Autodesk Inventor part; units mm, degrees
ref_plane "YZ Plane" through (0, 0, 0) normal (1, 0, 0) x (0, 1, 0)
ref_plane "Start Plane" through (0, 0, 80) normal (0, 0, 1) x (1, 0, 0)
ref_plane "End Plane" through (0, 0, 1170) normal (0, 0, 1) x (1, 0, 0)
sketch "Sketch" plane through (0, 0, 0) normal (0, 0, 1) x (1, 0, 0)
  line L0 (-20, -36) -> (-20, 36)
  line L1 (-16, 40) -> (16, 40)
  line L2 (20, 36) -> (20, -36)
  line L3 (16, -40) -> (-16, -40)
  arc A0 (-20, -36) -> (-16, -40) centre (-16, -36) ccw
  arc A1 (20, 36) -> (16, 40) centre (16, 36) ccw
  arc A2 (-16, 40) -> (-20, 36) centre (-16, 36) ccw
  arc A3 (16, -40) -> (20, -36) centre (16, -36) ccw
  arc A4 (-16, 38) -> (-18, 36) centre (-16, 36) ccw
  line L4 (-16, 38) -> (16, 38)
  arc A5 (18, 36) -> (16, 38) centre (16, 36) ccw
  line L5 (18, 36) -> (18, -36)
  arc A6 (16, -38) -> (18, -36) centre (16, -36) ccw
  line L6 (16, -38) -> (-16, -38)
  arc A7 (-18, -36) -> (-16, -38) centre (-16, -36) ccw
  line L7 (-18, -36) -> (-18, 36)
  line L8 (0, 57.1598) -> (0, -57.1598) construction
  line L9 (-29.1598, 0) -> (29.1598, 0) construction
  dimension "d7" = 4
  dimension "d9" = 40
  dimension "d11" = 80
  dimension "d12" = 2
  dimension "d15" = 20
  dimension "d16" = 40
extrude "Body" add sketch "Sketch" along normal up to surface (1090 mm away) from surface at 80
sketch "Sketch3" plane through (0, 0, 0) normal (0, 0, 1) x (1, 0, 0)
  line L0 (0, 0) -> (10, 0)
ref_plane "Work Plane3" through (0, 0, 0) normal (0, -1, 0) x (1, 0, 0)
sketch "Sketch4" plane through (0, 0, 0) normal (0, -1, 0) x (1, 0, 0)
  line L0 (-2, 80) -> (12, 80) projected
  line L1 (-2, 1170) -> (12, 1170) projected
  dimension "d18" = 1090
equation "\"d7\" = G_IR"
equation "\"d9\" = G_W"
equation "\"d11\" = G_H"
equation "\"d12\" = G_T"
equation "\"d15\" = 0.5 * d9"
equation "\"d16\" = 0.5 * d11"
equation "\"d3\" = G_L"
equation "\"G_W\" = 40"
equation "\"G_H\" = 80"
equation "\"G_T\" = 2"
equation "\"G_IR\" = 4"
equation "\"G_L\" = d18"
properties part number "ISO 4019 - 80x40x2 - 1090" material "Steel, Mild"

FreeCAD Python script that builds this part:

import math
import FreeCAD as App
import Part
import Sketcher
Q = App.Units.Quantity

doc = App.newDocument("Part")
body = doc.addObject("PartDesign::Body", "Body")

# Sketch on XY plane
sketch1 = doc.addObject("Sketcher::SketchObject", "Sketch")
body.addObject(sketch1)
sketch1.AttachmentSupport = (doc.XY_Plane, [""])
sketch1.MapMode = "FlatFace"
sketch1.AttachmentOffset = App.Placement(App.Vector(0, 0, 80), App.Rotation())
sketch1.addGeometry(Part.LineSegment(App.Vector(-20, 36, 0), App.Vector(-20, -36, 0)), False)
sketch1.addGeometry(Part.ArcOfCircle(Part.Circle(App.Vector(-16, -36, 0), App.Vector(0, 0, 1), 4), math.radians(180), math.radians(270)), False)
sketch1.addGeometry(Part.LineSegment(App.Vector(-16, -40, 0), App.Vector(16, -40, 0)), False)
sketch1.addGeometry(Part.ArcOfCircle(Part.Circle(App.Vector(16, -36, 0), App.Vector(0, 0, 1), 4), math.radians(-90), math.radians(0)), False)
sketch1.addGeometry(Part.LineSegment(App.Vector(20, -36, 0), App.Vector(20, 36, 0)), False)
sketch1.addGeometry(Part.ArcOfCircle(Part.Circle(App.Vector(16, 36, 0), App.Vector(0, 0, 1), 4), math.radians(0), math.radians(90)), False)
sketch1.addGeometry(Part.LineSegment(App.Vector(16, 40, 0), App.Vector(-16, 40, 0)), False)
sketch1.addGeometry(Part.ArcOfCircle(Part.Circle(App.Vector(-16, 36, 0), App.Vector(0, 0, 1), 4), math.radians(90), math.radians(180)), False)
sketch1.addGeometry(Part.ArcOfCircle(Part.Circle(App.Vector(-16, 36, 0), App.Vector(0, 0, 1), 2), math.radians(90), math.radians(180)), False)
sketch1.addGeometry(Part.LineSegment(App.Vector(-16, 38, 0), App.Vector(16, 38, 0)), False)
sketch1.addGeometry(Part.ArcOfCircle(Part.Circle(App.Vector(16, 36, 0), App.Vector(0, 0, 1), 2), math.radians(0), math.radians(90)), False)
sketch1.addGeometry(Part.LineSegment(App.Vector(18, 36, 0), App.Vector(18, -36, 0)), False)
sketch1.addGeometry(Part.ArcOfCircle(Part.Circle(App.Vector(16, -36, 0), App.Vector(0, 0, 1), 2), math.radians(-90), math.radians(0)), False)
sketch1.addGeometry(Part.LineSegment(App.Vector(16, -38, 0), App.Vector(-16, -38, 0)), False)
sketch1.addGeometry(Part.ArcOfCircle(Part.Circle(App.Vector(-16, -36, 0), App.Vector(0, 0, 1), 2), math.radians(180), math.radians(270)), False)
sketch1.addGeometry(Part.LineSegment(App.Vector(-18, -36, 0), App.Vector(-18, 36, 0)), False)
sketch1.addConstraint(Sketcher.Constraint("Tangent", 0, 2, 1, 1))
sketch1.addConstraint(Sketcher.Constraint("Tangent", 1, 2, 2, 1))
sketch1.addConstraint(Sketcher.Constraint("Tangent", 2, 2, 3, 1))
sketch1.addConstraint(Sketcher.Constraint("Tangent", 3, 2, 4, 1))
sketch1.addConstraint(Sketcher.Constraint("Tangent", 4, 2, 5, 1))
sketch1.addConstraint(Sketcher.Constraint("Tangent", 5, 2, 6, 1))
sketch1.addConstraint(Sketcher.Constraint("Tangent", 6, 2, 7, 1))
sketch1.addConstraint(Sketcher.Constraint("Tangent", 7, 2, 0, 1))
sketch1.addConstraint(Sketcher.Constraint("Tangent", 8, 1, 9, 1))
sketch1.addConstraint(Sketcher.Constraint("Tangent", 9, 2, 10, 2))
sketch1.addConstraint(Sketcher.Constraint("Tangent", 10, 1, 11, 1))
sketch1.addConstraint(Sketcher.Constraint("Tangent", 11, 2, 12, 2))
sketch1.addConstraint(Sketcher.Constraint("Tangent", 12, 1, 13, 1))
sketch1.addConstraint(Sketcher.Constraint("Tangent", 13, 2, 14, 2))
sketch1.addConstraint(Sketcher.Constraint("Tangent", 14, 1, 15, 1))
sketch1.addConstraint(Sketcher.Constraint("Tangent", 15, 2, 8, 2))
sketch1.addConstraint(Sketcher.Constraint("Vertical", 0))
sketch1.addConstraint(Sketcher.Constraint("Horizontal", 2))
sketch1.addConstraint(Sketcher.Constraint("Vertical", 4))
sketch1.addConstraint(Sketcher.Constraint("Horizontal", 6))
sketch1.addConstraint(Sketcher.Constraint("Horizontal", 9))
sketch1.addConstraint(Sketcher.Constraint("Vertical", 11))
sketch1.addConstraint(Sketcher.Constraint("Horizontal", 13))
sketch1.addConstraint(Sketcher.Constraint("Vertical", 15))
sketch1.addConstraint(Sketcher.Constraint("Coincident", 8, 3, 7, 3))
sketch1.addConstraint(Sketcher.Constraint("Coincident", 10, 3, 5, 3))
sketch1.addConstraint(Sketcher.Constraint("Coincident", 12, 3, 3, 3))
sketch1.addConstraint(Sketcher.Constraint("Equal", 1, 3))
sketch1.addConstraint(Sketcher.Constraint("Equal", 3, 5))
sketch1.addConstraint(Sketcher.Constraint("Equal", 5, 7))
sketch1.addConstraint(Sketcher.Constraint("Equal", 12, 14))
sketch1.addConstraint(Sketcher.Constraint("Symmetric", 1, 3, 5, 3, -1, 1))
sketch1.addConstraint(Sketcher.Constraint("Radius", 1, Q("4 mm")))
sketch1.addConstraint(Sketcher.Constraint("Radius", 8, Q("2 mm")))
sketch1.addConstraint(Sketcher.Constraint("DistanceX", 0, 2, -1, 1, Q("20 mm")))
sketch1.addConstraint(Sketcher.Constraint("DistanceY", 1, 2, -1, 1, Q("40 mm")))
pad1 = doc.addObject("PartDesign::Pad", "Pad")
body.addObject(pad1)
pad1.Profile = sketch1
pad1.Length = 1090

doc.recompute()
